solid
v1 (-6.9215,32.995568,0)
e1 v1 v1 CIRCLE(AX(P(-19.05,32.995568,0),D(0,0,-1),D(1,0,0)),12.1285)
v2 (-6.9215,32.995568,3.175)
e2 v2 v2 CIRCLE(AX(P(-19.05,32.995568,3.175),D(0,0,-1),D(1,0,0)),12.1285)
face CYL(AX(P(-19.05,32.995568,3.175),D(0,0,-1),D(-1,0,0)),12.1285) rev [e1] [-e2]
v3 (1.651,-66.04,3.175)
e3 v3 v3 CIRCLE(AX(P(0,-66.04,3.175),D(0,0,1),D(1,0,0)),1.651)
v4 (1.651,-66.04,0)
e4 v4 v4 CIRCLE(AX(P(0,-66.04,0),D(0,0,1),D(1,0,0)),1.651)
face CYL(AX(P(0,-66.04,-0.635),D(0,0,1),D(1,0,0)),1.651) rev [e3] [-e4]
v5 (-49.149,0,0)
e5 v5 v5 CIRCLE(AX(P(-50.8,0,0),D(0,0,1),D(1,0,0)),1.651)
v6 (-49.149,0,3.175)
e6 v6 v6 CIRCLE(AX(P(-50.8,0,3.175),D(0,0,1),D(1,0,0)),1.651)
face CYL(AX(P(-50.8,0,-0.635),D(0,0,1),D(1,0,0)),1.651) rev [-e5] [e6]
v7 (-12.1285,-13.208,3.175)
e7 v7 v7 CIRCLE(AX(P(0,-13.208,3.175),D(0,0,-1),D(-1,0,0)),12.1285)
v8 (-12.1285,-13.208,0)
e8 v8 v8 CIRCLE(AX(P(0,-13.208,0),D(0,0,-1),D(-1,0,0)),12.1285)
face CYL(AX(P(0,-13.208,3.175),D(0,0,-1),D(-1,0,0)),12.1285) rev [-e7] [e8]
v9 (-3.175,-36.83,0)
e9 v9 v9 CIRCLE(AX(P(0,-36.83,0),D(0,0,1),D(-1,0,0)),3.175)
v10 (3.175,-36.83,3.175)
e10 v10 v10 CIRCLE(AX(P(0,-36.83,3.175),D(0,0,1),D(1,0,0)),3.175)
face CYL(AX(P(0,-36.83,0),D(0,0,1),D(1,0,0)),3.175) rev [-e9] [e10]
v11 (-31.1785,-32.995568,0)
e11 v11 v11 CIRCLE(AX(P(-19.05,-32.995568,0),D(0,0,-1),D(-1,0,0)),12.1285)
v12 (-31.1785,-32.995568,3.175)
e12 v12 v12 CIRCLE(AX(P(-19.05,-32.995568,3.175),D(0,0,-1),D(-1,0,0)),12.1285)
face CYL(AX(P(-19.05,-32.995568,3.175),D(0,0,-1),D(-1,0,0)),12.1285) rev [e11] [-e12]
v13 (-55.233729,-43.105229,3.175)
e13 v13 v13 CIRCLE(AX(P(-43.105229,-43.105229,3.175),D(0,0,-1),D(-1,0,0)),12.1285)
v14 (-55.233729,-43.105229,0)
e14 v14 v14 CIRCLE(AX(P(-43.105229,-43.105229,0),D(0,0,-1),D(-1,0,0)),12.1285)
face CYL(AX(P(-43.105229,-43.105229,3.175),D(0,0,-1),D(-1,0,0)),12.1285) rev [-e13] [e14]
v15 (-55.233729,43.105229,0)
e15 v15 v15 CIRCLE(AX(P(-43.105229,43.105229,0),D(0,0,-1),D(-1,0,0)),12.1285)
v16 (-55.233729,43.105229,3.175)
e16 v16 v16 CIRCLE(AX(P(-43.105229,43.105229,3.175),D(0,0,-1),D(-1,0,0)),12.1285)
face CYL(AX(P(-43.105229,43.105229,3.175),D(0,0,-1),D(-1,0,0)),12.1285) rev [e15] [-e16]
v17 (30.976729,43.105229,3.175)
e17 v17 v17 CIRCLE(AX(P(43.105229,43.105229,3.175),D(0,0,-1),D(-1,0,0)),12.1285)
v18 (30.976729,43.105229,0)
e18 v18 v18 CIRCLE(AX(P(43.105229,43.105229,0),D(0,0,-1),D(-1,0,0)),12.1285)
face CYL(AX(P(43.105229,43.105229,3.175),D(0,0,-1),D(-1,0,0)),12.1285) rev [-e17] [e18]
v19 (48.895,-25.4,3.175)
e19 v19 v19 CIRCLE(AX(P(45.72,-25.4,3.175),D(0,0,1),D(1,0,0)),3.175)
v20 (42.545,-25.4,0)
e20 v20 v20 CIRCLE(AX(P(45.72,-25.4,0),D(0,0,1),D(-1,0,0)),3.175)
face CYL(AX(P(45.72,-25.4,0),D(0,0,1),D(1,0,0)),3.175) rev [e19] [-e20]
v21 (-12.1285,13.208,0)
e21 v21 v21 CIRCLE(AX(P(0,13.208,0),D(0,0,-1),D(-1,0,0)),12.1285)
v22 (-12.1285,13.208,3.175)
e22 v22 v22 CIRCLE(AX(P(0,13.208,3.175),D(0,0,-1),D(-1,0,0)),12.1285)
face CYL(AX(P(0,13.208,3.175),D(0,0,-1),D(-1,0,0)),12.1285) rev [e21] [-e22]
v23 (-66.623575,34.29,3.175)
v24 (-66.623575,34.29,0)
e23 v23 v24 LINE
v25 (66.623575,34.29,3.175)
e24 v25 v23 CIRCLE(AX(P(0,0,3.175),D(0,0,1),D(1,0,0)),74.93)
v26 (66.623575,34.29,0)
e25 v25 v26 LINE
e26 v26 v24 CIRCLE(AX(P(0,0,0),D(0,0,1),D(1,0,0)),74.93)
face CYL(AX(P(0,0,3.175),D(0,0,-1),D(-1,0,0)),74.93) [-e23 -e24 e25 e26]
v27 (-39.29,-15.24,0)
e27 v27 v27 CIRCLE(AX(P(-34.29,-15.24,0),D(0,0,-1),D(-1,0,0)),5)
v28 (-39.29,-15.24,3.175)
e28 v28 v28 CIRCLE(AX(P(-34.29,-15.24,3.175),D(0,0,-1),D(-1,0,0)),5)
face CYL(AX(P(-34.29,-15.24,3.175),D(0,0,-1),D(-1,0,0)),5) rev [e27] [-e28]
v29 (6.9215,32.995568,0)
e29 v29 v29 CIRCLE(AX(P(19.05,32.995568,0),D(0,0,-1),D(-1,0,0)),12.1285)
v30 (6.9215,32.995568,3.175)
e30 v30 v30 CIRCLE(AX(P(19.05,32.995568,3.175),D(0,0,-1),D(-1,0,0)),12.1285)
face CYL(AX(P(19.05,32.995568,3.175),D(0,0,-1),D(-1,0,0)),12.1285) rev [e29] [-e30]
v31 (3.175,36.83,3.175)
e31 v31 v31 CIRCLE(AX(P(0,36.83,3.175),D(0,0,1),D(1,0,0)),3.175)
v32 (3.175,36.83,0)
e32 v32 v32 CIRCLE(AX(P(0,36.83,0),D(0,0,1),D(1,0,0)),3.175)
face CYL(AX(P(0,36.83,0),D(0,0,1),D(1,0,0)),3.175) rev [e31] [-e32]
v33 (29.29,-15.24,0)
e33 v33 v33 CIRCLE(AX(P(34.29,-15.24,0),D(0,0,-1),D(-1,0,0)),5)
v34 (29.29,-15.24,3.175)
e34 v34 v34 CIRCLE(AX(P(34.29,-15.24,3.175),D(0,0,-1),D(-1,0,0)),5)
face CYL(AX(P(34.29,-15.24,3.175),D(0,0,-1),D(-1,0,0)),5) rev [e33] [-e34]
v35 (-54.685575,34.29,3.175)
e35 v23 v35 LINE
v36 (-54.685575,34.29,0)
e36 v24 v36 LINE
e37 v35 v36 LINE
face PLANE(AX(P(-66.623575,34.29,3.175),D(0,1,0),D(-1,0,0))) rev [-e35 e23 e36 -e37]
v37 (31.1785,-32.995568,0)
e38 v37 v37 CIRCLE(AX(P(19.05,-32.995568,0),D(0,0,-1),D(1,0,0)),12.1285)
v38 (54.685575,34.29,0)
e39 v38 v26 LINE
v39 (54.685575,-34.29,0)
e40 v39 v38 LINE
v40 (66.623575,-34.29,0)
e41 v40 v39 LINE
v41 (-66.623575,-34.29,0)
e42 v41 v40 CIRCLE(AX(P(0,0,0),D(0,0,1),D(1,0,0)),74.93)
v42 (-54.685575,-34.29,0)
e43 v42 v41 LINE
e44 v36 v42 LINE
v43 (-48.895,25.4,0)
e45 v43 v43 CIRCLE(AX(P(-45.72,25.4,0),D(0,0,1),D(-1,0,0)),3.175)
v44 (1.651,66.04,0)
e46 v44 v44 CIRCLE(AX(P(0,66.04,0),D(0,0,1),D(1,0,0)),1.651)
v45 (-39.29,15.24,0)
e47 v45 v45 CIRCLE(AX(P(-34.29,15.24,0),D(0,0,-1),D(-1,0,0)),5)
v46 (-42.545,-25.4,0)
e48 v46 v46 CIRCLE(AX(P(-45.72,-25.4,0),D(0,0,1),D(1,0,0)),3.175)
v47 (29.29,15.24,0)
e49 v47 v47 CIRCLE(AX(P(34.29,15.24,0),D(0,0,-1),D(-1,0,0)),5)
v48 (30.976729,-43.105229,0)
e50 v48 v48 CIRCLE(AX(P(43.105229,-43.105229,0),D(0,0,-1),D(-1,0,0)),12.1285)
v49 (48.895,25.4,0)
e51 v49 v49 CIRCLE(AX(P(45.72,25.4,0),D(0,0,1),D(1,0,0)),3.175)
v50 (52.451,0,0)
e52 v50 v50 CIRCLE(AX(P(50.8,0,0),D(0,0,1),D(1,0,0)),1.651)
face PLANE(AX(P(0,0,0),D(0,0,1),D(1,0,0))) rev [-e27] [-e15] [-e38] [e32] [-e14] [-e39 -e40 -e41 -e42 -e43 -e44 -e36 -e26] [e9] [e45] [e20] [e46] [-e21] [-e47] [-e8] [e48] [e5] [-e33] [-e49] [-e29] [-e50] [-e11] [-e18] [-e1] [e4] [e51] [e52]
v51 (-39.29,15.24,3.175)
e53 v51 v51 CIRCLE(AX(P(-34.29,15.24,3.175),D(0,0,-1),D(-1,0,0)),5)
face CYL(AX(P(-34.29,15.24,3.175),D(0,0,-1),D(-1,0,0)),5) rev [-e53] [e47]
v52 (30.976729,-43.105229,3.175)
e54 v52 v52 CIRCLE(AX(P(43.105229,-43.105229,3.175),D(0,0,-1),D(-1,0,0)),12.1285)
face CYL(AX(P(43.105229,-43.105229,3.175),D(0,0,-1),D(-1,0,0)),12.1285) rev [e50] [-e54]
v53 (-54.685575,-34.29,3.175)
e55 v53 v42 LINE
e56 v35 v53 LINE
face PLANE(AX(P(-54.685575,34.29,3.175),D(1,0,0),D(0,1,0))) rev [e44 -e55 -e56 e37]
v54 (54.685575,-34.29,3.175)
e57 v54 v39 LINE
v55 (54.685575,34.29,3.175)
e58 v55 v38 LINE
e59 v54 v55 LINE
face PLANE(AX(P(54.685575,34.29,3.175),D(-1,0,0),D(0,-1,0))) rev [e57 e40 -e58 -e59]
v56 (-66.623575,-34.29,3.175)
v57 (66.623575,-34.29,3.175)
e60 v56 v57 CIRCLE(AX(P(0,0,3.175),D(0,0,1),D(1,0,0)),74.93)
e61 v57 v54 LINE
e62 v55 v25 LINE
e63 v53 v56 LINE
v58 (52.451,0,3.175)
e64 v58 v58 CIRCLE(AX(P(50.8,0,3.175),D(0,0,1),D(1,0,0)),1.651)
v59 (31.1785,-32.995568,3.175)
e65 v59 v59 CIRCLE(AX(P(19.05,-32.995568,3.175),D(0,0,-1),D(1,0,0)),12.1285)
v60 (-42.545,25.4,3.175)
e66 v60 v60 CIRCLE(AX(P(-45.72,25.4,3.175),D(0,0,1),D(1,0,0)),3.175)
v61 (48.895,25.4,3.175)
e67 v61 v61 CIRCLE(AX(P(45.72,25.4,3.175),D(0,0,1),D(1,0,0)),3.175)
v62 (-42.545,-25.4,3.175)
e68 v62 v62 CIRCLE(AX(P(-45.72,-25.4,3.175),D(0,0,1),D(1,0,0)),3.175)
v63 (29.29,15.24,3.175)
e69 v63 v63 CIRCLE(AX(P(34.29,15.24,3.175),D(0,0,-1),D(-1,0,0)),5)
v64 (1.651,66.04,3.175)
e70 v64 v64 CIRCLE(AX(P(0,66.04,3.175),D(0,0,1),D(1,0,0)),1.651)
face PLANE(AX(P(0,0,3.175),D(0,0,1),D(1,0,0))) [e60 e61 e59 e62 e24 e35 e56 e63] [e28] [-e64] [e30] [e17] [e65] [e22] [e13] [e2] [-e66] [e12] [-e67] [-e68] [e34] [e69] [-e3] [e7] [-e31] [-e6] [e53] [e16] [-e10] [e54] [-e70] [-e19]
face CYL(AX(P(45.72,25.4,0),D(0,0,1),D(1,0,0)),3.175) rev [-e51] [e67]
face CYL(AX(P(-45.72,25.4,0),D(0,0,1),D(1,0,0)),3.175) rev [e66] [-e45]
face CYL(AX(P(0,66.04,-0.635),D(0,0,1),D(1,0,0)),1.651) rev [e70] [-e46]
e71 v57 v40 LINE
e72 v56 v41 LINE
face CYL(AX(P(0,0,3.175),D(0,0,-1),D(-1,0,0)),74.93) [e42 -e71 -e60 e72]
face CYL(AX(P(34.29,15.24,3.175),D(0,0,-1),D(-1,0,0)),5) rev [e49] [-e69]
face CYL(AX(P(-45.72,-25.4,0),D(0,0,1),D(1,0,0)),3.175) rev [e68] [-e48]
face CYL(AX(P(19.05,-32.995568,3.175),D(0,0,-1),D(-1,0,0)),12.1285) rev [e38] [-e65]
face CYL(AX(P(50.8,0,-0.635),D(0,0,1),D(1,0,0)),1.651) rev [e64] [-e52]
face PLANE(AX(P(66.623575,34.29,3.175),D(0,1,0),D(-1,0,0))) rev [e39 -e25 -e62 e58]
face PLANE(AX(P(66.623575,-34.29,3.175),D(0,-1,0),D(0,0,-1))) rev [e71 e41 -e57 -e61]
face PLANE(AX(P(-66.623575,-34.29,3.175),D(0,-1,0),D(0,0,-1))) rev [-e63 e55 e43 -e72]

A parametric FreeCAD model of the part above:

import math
import FreeCAD as App
import Part
import Sketcher

V = App.Vector
Q = App.Units.Quantity


def add_polygon(sketch, points):
    """Adds a closed chain of lines whose ends are joined by coincident constraints."""
    first, n = sketch.GeometryCount, len(points)
    for a, b in zip(points, points[1:] + points[:1]):
        sketch.addGeometry(Part.LineSegment(App.Vector(*a, 0), App.Vector(*b, 0)), False)
    for i in range(n):
        sketch.addConstraint(Sketcher.Constraint("Coincident", first + i, 2, first + (i + 1) % n, 1))

doc = App.newDocument("Part")
body = doc.addObject("PartDesign::Body", "Body")

# Sketch on XY plane
sketch1 = body.newObject("Sketcher::SketchObject", "Sketch")
sketch1.AttachmentSupport = (doc.getObject("XY_Plane"), [""])
sketch1.MapMode = "FlatFace"
sketch1.addGeometry([
    Part.LineSegment(V(-66.6, 34.3, 0), V(-54.7, 34.3, 0)),  # 0
    Part.LineSegment(V(-54.7, 34.3, 0), V(-54.7, -34.3, 0)),  # 1
    Part.LineSegment(V(-54.7, -34.3, 0), V(-66.6, -34.3, 0)),  # 2
    Part.ArcOfCircle(Part.Circle(V(0, 0, 0), V(0, 0, 1), 74.9), math.radians(-153), math.radians(-27)),  # 3
    Part.LineSegment(V(66.6, -34.3, 0), V(54.7, -34.3, 0)),  # 4
    Part.LineSegment(V(54.7, -34.3, 0), V(54.7, 34.3, 0)),  # 5
    Part.LineSegment(V(54.7, 34.3, 0), V(66.6, 34.3, 0)),  # 6
    Part.ArcOfCircle(Part.Circle(V(0, 0, 0), V(0, 0, 1), 74.9), math.radians(27), math.radians(153)),  # 7
    Part.Circle(V(-45.5, -11, 0), V(0, 0, 1), 1.7),  # 8
    Part.Circle(V(-20.1, -10.8, 0), V(0, 0, 1), 1.7),  # 9
    Part.Circle(V(20.1, -10.8, 0), V(0, 0, 1), 1.7),  # 10
    Part.Circle(V(45.5, -11, 0), V(0, 0, 1), 1.7),  # 11
    Part.Circle(V(-45.5, 11, 0), V(0, 0, 1), 1.7),  # 12
    Part.Circle(V(-20.1, 10.8, 0), V(0, 0, 1), 1.7),  # 13
    Part.Circle(V(20.1, 10.8, 0), V(0, 0, 1), 1.7),  # 14
    Part.Circle(V(45.5, 11, 0), V(0, 0, 1), 1.7),  # 15
], False)
sketch1.addConstraint([
    Sketcher.Constraint("Coincident", 0, 2, 1, 1),
    Sketcher.Constraint("Coincident", 1, 2, 2, 1),
    Sketcher.Constraint("Coincident", 2, 2, 3, 1),
    Sketcher.Constraint("Coincident", 3, 2, 4, 1),
    Sketcher.Constraint("Coincident", 4, 2, 5, 1),
    Sketcher.Constraint("Coincident", 5, 2, 6, 1),
    Sketcher.Constraint("Coincident", 6, 2, 7, 1),
    Sketcher.Constraint("Coincident", 7, 2, 0, 1),
    Sketcher.Constraint("Horizontal", 0),
    Sketcher.Constraint("Vertical", 1),
    Sketcher.Constraint("Horizontal", 2),
    Sketcher.Constraint("Horizontal", 4),
    Sketcher.Constraint("Vertical", 5),
    Sketcher.Constraint("Horizontal", 6),
    Sketcher.Constraint("Coincident", 3, 3, -1, 1),
    Sketcher.Constraint("Coincident", 7, 3, -1, 1),
    Sketcher.Constraint("Equal", 3, 7),
    Sketcher.Constraint("Equal", 8, 9),
    Sketcher.Constraint("Equal", 9, 10),
    Sketcher.Constraint("Equal", 10, 11),
    Sketcher.Constraint("Equal", 11, 12),
    Sketcher.Constraint("Equal", 12, 13),
    Sketcher.Constraint("Equal", 13, 14),
    Sketcher.Constraint("Equal", 14, 15),
    Sketcher.Constraint("Symmetric", 11, 3, 12, 3, -1, 1),
    Sketcher.Constraint("Symmetric", 10, 3, 13, 3, -1, 1),
    Sketcher.Constraint("Symmetric", 9, 3, 14, 3, -1, 1),
    Sketcher.Constraint("Symmetric", 8, 3, 15, 3, -1, 1),
    Sketcher.Constraint("Symmetric", 0, 2, 4, 2, -1, 1),
    Sketcher.Constraint("Symmetric", 9, 3, 10, 3, -2),
    Sketcher.Constraint("Symmetric", 8, 3, 11, 3, -2),
    Sketcher.Constraint("Horizontal", 2, 2, 3, 2),
    Sketcher.Constraint("Horizontal", 0, 2, 5, 2),
    Sketcher.Constraint("Diameter", 8, Q("0.13 in")),
    Sketcher.Constraint("Radius", 3, Q("2.95 in")),
    Sketcher.Constraint("DistanceY", 1, 2, 1, 1, Q("2.7 in")),
    Sketcher.Constraint("DistanceX", 0, 1, 0, 2, Q("0.47 in")),
    Sketcher.Constraint("DistanceX", 8, 3, -1, 1, Q("1.79 in")),
    Sketcher.Constraint("DistanceY", 8, 3, 9, 3, Q("0.01 in")),
    Sketcher.Constraint("DistanceY", 8, 3, 12, 3, Q("0.87 in")),
    Sketcher.Constraint("DistanceX", 9, 3, 10, 3, Q("1.5801 in")),
])
pad1 = body.newObject("PartDesign::Pad", "Pad")
pad1.Profile = sketch1
pad1.Length = Q("0.125 in")

# Sketch on XY plane
sketch2 = body.newObject("Sketcher::SketchObject", "Sketch001")
sketch2.AttachmentSupport = (doc.getObject("XY_Plane"), [""])
sketch2.MapMode = "FlatFace"
sketch2.addGeometry([
    Part.Circle(V(0, -13, 0), V(0, 0, 1), 12),  # 0
    Part.Circle(V(0, 13, 0), V(0, 0, 1), 12),  # 1
    Part.Circle(V(43, -43, 0), V(0, 0, 1), 12),  # 2
    Part.Circle(V(-19, -33, 0), V(0, 0, 1), 12),  # 3
    Part.Circle(V(-19, 33, 0), V(0, 0, 1), 12),  # 4
    Part.Circle(V(43, 43, 0), V(0, 0, 1), 12),  # 5
    Part.Circle(V(-43, 43, 0), V(0, 0, 1), 12),  # 6
    Part.Circle(V(19, 33, 0), V(0, 0, 1), 12),  # 7
    Part.Circle(V(19, -33, 0), V(0, 0, 1), 12),  # 8
    Part.Circle(V(-43, -43, 0), V(0, 0, 1), 12),  # 9
], False)
sketch2.addConstraint([
    Sketcher.Constraint("Equal", 0, 1),
    Sketcher.Constraint("Equal", 1, 2),
    Sketcher.Constraint("Equal", 2, 3),
    Sketcher.Constraint("Equal", 3, 4),
    Sketcher.Constraint("Equal", 4, 5),
    Sketcher.Constraint("Equal", 5, 6),
    Sketcher.Constraint("Equal", 6, 7),
    Sketcher.Constraint("Equal", 7, 8),
    Sketcher.Constraint("Equal", 8, 9),
    Sketcher.Constraint("Symmetric", 0, 3, 1, 3, -1, 1),
    Sketcher.Constraint("Symmetric", 2, 3, 6, 3, -1, 1),
    Sketcher.Constraint("Symmetric", 3, 3, 7, 3, -1, 1),
    Sketcher.Constraint("Symmetric", 4, 3, 8, 3, -1, 1),
    Sketcher.Constraint("Symmetric", 5, 3, 9, 3, -1, 1),
    Sketcher.Constraint("Symmetric", 5, 3, 6, 3, -2),
    Sketcher.Constraint("Symmetric", 4, 3, 7, 3, -2),
    Sketcher.Constraint("PointOnObject", 0, 3, -2),
    Sketcher.Constraint("Diameter", 0, Q("0.955 in")),
    Sketcher.Constraint("DistanceX", 4, 3, 7, 3, Q("1.5 in")),
    Sketcher.Constraint("DistanceY", 0, 3, -1, 1, Q("0.52 in")),
    Sketcher.Constraint("DistanceX", -1, 1, 2, 3, Q("43.105229 mm")),
    Sketcher.Constraint("DistanceY", 2, 3, -1, 1, Q("43.105229 mm")),
    Sketcher.Constraint("DistanceY", 2, 3, 3, 3, Q("10.109661 mm")),
])
pocket1 = body.newObject("PartDesign::Pocket", "Pocket")
pocket1.Profile = sketch2
pocket1.Type = "ThroughAll"
pocket1.Reversed = True

# Sketch on XY plane
sketch3 = body.newObject("Sketcher::SketchObject", "Sketch002")
sketch3.AttachmentSupport = (doc.getObject("XY_Plane"), [""])
sketch3.MapMode = "FlatFace"
add_polygon(sketch3, [(-14, 16), (-14, -18), (-52, -18), (-52, 16)])  # lines 0-3
add_polygon(sketch3, [(53, 16), (53, -17), (16, -17), (16, 16)])  # lines 4-7
sketch3.addConstraint([
    Sketcher.Constraint("Vertical", 0),
    Sketcher.Constraint("Horizontal", 1),
    Sketcher.Constraint("Vertical", 2),
    Sketcher.Constraint("Horizontal", 3),
    Sketcher.Constraint("Vertical", 4),
    Sketcher.Constraint("Horizontal", 5),
    Sketcher.Constraint("Vertical", 6),
    Sketcher.Constraint("Horizontal", 7),
    Sketcher.Constraint("Horizontal", 3, 2, 6, 2),
    Sketcher.Constraint("DistanceX", 1, 2, 1, 1, Q("37.082318 mm")),
    Sketcher.Constraint("DistanceX", 5, 2, 5, 1, Q("37.024578 mm")),
    Sketcher.Constraint("DistanceY", 0, 2, 0, 1, Q("34.047904 mm")),
    Sketcher.Constraint("DistanceY", 4, 2, 4, 1, Q("32.488734 mm")),
    Sketcher.Constraint("DistanceX", 0, 2, -1, 1, Q("14.45004 mm")),
    Sketcher.Constraint("DistanceY", 0, 2, -1, 1, Q("18.445107 mm")),
    Sketcher.Constraint("DistanceX", -1, 1, 4, 2, Q("52.597364 mm")),
])
pad2 = body.newObject("PartDesign::Pad", "Pad001")
pad2.Profile = sketch3
pad2.Length = Q("0.125 in")

# Sketch on XY plane
sketch4 = body.newObject("Sketcher::SketchObject", "Sketch003")
sketch4.AttachmentSupport = (doc.getObject("XY_Plane"), [""])
sketch4.MapMode = "FlatFace"
sketch4.addGeometry([
    Part.Circle(V(-34, -15, 0), V(0, 0, 1), 5),
    Part.Circle(V(34, -15, 0), V(0, 0, 1), 5),
    Part.Circle(V(-34, 15, 0), V(0, 0, 1), 5),
    Part.Circle(V(34, 15, 0), V(0, 0, 1), 5),
], False)
sketch4.addConstraint([
    Sketcher.Constraint("Equal", 0, 1),
    Sketcher.Constraint("Equal", 1, 2),
    Sketcher.Constraint("Equal", 2, 3),
    Sketcher.Constraint("Symmetric", 1, 3, 2, 3, -1, 1),
    Sketcher.Constraint("Symmetric", 0, 3, 3, 3, -1, 1),
    Sketcher.Constraint("Symmetric", 0, 3, 1, 3, -2),
    Sketcher.Constraint("DistanceY", 0, 3, -1, 1, Q("0.6 in")),
    Sketcher.Constraint("DistanceX", 0, 3, 1, 3, Q("2.7 in")),
    Sketcher.Constraint("Diameter", 0, Q("10 mm")),
])
pocket2 = body.newObject("PartDesign::Pocket", "Pocket001")
pocket2.Profile = sketch4
pocket2.Type = "ThroughAll"
pocket2.Reversed = True

# Sketch on XY plane
sketch5 = body.newObject("Sketcher::SketchObject", "Sketch004")
sketch5.AttachmentSupport = (doc.getObject("XY_Plane"), [""])
sketch5.MapMode = "FlatFace"
sketch5.AttachmentOffset = App.Placement(V(0, 0, 0.125 * 25.4), App.Rotation())
sketch5.addGeometry([
    Part.Circle(V(45.7, 25.4, 0), V(0, 0, 1), 3.2),  # 0
    Part.Circle(V(0, 36.8, 0), V(0, 0, 1), 3.2),  # 1
    Part.Circle(V(-45.7, 25.4, 0), V(0, 0, 1), 3.2),  # 2
    Part.Circle(V(-45.7, -25.4, 0), V(0, 0, 1), 3.2),  # 3
    Part.Circle(V(0, -36.8, 0), V(0, 0, 1), 3.2),  # 4
    Part.Circle(V(45.7, -25.4, 0), V(0, 0, 1), 3.2),  # 5
], False)
sketch5.addConstraint([
    Sketcher.Constraint("Equal", 0, 1),
    Sketcher.Constraint("Equal", 1, 2),
    Sketcher.Constraint("Equal", 2, 3),
    Sketcher.Constraint("Equal", 3, 4),
    Sketcher.Constraint("Equal", 4, 5),
    Sketcher.Constraint("Symmetric", 0, 3, 3, 3, -1, 1),
    Sketcher.Constraint("Symmetric", 1, 3, 4, 3, -1, 1),
    Sketcher.Constraint("Symmetric", 2, 3, 5, 3, -1, 1),
    Sketcher.Constraint("Symmetric", 0, 3, 2, 3, -2),
    Sketcher.Constraint("PointOnObject", 1, 3, -2),
    Sketcher.Constraint("Diameter", 0, Q("0.25 in")),
    Sketcher.Constraint("DistanceY", -1, 1, 0, 3, Q("1 in")),
    Sketcher.Constraint("DistanceX", -1, 1, 0, 3, Q("1.8 in")),
    Sketcher.Constraint("DistanceY", 4, 3, 1, 3, Q("2.9 in")),
])
pocket3 = body.newObject("PartDesign::Pocket", "Pocket002")
pocket3.Profile = sketch5
pocket3.Type = "ThroughAll"
pocket3.Midplane = True

# Sketch on XY plane
sketch6 = body.newObject("Sketcher::SketchObject", "Sketch005")
sketch6.AttachmentSupport = (doc.getObject("XY_Plane"), [""])
sketch6.MapMode = "FlatFace"
sketch6.AttachmentOffset = App.Placement(V(0, 0, 0.625 * 25.4), App.Rotation())
sketch6.addGeometry([
    Part.Circle(V(0, 66, 0), V(0, 0, 1), 1.7),
    Part.Circle(V(0, -66, 0), V(0, 0, 1), 1.7),
    Part.Circle(V(-50.8, 0, 0), V(0, 0, 1), 1.7),
    Part.Circle(V(50.8, 0, 0), V(0, 0, 1), 1.7),
], False)
sketch6.addConstraint([
    Sketcher.Constraint("Equal", 0, 1),
    Sketcher.Constraint("Equal", 1, 2),
    Sketcher.Constraint("Equal", 2, 3),
    Sketcher.Constraint("Symmetric", 0, 3, 1, 3, -1, 1),
    Sketcher.Constraint("Symmetric", 2, 3, 3, 3, -1, 1),
    Sketcher.Constraint("PointOnObject", 0, 3, -2),
    Sketcher.Constraint("PointOnObject", 2, 3, -1),
    Sketcher.Constraint("Diameter", 0, Q("0.13 in")),
    Sketcher.Constraint("DistanceX", 2, 3, -1, 1, Q("2 in")),
    Sketcher.Constraint("DistanceY", -1, 1, 0, 3, Q("2.6 in")),
])
pocket4 = body.newObject("PartDesign::Pocket", "Pocket003")
pocket4.Profile = sketch6
pocket4.Length = Q("0.65 in")

doc.recompute()
